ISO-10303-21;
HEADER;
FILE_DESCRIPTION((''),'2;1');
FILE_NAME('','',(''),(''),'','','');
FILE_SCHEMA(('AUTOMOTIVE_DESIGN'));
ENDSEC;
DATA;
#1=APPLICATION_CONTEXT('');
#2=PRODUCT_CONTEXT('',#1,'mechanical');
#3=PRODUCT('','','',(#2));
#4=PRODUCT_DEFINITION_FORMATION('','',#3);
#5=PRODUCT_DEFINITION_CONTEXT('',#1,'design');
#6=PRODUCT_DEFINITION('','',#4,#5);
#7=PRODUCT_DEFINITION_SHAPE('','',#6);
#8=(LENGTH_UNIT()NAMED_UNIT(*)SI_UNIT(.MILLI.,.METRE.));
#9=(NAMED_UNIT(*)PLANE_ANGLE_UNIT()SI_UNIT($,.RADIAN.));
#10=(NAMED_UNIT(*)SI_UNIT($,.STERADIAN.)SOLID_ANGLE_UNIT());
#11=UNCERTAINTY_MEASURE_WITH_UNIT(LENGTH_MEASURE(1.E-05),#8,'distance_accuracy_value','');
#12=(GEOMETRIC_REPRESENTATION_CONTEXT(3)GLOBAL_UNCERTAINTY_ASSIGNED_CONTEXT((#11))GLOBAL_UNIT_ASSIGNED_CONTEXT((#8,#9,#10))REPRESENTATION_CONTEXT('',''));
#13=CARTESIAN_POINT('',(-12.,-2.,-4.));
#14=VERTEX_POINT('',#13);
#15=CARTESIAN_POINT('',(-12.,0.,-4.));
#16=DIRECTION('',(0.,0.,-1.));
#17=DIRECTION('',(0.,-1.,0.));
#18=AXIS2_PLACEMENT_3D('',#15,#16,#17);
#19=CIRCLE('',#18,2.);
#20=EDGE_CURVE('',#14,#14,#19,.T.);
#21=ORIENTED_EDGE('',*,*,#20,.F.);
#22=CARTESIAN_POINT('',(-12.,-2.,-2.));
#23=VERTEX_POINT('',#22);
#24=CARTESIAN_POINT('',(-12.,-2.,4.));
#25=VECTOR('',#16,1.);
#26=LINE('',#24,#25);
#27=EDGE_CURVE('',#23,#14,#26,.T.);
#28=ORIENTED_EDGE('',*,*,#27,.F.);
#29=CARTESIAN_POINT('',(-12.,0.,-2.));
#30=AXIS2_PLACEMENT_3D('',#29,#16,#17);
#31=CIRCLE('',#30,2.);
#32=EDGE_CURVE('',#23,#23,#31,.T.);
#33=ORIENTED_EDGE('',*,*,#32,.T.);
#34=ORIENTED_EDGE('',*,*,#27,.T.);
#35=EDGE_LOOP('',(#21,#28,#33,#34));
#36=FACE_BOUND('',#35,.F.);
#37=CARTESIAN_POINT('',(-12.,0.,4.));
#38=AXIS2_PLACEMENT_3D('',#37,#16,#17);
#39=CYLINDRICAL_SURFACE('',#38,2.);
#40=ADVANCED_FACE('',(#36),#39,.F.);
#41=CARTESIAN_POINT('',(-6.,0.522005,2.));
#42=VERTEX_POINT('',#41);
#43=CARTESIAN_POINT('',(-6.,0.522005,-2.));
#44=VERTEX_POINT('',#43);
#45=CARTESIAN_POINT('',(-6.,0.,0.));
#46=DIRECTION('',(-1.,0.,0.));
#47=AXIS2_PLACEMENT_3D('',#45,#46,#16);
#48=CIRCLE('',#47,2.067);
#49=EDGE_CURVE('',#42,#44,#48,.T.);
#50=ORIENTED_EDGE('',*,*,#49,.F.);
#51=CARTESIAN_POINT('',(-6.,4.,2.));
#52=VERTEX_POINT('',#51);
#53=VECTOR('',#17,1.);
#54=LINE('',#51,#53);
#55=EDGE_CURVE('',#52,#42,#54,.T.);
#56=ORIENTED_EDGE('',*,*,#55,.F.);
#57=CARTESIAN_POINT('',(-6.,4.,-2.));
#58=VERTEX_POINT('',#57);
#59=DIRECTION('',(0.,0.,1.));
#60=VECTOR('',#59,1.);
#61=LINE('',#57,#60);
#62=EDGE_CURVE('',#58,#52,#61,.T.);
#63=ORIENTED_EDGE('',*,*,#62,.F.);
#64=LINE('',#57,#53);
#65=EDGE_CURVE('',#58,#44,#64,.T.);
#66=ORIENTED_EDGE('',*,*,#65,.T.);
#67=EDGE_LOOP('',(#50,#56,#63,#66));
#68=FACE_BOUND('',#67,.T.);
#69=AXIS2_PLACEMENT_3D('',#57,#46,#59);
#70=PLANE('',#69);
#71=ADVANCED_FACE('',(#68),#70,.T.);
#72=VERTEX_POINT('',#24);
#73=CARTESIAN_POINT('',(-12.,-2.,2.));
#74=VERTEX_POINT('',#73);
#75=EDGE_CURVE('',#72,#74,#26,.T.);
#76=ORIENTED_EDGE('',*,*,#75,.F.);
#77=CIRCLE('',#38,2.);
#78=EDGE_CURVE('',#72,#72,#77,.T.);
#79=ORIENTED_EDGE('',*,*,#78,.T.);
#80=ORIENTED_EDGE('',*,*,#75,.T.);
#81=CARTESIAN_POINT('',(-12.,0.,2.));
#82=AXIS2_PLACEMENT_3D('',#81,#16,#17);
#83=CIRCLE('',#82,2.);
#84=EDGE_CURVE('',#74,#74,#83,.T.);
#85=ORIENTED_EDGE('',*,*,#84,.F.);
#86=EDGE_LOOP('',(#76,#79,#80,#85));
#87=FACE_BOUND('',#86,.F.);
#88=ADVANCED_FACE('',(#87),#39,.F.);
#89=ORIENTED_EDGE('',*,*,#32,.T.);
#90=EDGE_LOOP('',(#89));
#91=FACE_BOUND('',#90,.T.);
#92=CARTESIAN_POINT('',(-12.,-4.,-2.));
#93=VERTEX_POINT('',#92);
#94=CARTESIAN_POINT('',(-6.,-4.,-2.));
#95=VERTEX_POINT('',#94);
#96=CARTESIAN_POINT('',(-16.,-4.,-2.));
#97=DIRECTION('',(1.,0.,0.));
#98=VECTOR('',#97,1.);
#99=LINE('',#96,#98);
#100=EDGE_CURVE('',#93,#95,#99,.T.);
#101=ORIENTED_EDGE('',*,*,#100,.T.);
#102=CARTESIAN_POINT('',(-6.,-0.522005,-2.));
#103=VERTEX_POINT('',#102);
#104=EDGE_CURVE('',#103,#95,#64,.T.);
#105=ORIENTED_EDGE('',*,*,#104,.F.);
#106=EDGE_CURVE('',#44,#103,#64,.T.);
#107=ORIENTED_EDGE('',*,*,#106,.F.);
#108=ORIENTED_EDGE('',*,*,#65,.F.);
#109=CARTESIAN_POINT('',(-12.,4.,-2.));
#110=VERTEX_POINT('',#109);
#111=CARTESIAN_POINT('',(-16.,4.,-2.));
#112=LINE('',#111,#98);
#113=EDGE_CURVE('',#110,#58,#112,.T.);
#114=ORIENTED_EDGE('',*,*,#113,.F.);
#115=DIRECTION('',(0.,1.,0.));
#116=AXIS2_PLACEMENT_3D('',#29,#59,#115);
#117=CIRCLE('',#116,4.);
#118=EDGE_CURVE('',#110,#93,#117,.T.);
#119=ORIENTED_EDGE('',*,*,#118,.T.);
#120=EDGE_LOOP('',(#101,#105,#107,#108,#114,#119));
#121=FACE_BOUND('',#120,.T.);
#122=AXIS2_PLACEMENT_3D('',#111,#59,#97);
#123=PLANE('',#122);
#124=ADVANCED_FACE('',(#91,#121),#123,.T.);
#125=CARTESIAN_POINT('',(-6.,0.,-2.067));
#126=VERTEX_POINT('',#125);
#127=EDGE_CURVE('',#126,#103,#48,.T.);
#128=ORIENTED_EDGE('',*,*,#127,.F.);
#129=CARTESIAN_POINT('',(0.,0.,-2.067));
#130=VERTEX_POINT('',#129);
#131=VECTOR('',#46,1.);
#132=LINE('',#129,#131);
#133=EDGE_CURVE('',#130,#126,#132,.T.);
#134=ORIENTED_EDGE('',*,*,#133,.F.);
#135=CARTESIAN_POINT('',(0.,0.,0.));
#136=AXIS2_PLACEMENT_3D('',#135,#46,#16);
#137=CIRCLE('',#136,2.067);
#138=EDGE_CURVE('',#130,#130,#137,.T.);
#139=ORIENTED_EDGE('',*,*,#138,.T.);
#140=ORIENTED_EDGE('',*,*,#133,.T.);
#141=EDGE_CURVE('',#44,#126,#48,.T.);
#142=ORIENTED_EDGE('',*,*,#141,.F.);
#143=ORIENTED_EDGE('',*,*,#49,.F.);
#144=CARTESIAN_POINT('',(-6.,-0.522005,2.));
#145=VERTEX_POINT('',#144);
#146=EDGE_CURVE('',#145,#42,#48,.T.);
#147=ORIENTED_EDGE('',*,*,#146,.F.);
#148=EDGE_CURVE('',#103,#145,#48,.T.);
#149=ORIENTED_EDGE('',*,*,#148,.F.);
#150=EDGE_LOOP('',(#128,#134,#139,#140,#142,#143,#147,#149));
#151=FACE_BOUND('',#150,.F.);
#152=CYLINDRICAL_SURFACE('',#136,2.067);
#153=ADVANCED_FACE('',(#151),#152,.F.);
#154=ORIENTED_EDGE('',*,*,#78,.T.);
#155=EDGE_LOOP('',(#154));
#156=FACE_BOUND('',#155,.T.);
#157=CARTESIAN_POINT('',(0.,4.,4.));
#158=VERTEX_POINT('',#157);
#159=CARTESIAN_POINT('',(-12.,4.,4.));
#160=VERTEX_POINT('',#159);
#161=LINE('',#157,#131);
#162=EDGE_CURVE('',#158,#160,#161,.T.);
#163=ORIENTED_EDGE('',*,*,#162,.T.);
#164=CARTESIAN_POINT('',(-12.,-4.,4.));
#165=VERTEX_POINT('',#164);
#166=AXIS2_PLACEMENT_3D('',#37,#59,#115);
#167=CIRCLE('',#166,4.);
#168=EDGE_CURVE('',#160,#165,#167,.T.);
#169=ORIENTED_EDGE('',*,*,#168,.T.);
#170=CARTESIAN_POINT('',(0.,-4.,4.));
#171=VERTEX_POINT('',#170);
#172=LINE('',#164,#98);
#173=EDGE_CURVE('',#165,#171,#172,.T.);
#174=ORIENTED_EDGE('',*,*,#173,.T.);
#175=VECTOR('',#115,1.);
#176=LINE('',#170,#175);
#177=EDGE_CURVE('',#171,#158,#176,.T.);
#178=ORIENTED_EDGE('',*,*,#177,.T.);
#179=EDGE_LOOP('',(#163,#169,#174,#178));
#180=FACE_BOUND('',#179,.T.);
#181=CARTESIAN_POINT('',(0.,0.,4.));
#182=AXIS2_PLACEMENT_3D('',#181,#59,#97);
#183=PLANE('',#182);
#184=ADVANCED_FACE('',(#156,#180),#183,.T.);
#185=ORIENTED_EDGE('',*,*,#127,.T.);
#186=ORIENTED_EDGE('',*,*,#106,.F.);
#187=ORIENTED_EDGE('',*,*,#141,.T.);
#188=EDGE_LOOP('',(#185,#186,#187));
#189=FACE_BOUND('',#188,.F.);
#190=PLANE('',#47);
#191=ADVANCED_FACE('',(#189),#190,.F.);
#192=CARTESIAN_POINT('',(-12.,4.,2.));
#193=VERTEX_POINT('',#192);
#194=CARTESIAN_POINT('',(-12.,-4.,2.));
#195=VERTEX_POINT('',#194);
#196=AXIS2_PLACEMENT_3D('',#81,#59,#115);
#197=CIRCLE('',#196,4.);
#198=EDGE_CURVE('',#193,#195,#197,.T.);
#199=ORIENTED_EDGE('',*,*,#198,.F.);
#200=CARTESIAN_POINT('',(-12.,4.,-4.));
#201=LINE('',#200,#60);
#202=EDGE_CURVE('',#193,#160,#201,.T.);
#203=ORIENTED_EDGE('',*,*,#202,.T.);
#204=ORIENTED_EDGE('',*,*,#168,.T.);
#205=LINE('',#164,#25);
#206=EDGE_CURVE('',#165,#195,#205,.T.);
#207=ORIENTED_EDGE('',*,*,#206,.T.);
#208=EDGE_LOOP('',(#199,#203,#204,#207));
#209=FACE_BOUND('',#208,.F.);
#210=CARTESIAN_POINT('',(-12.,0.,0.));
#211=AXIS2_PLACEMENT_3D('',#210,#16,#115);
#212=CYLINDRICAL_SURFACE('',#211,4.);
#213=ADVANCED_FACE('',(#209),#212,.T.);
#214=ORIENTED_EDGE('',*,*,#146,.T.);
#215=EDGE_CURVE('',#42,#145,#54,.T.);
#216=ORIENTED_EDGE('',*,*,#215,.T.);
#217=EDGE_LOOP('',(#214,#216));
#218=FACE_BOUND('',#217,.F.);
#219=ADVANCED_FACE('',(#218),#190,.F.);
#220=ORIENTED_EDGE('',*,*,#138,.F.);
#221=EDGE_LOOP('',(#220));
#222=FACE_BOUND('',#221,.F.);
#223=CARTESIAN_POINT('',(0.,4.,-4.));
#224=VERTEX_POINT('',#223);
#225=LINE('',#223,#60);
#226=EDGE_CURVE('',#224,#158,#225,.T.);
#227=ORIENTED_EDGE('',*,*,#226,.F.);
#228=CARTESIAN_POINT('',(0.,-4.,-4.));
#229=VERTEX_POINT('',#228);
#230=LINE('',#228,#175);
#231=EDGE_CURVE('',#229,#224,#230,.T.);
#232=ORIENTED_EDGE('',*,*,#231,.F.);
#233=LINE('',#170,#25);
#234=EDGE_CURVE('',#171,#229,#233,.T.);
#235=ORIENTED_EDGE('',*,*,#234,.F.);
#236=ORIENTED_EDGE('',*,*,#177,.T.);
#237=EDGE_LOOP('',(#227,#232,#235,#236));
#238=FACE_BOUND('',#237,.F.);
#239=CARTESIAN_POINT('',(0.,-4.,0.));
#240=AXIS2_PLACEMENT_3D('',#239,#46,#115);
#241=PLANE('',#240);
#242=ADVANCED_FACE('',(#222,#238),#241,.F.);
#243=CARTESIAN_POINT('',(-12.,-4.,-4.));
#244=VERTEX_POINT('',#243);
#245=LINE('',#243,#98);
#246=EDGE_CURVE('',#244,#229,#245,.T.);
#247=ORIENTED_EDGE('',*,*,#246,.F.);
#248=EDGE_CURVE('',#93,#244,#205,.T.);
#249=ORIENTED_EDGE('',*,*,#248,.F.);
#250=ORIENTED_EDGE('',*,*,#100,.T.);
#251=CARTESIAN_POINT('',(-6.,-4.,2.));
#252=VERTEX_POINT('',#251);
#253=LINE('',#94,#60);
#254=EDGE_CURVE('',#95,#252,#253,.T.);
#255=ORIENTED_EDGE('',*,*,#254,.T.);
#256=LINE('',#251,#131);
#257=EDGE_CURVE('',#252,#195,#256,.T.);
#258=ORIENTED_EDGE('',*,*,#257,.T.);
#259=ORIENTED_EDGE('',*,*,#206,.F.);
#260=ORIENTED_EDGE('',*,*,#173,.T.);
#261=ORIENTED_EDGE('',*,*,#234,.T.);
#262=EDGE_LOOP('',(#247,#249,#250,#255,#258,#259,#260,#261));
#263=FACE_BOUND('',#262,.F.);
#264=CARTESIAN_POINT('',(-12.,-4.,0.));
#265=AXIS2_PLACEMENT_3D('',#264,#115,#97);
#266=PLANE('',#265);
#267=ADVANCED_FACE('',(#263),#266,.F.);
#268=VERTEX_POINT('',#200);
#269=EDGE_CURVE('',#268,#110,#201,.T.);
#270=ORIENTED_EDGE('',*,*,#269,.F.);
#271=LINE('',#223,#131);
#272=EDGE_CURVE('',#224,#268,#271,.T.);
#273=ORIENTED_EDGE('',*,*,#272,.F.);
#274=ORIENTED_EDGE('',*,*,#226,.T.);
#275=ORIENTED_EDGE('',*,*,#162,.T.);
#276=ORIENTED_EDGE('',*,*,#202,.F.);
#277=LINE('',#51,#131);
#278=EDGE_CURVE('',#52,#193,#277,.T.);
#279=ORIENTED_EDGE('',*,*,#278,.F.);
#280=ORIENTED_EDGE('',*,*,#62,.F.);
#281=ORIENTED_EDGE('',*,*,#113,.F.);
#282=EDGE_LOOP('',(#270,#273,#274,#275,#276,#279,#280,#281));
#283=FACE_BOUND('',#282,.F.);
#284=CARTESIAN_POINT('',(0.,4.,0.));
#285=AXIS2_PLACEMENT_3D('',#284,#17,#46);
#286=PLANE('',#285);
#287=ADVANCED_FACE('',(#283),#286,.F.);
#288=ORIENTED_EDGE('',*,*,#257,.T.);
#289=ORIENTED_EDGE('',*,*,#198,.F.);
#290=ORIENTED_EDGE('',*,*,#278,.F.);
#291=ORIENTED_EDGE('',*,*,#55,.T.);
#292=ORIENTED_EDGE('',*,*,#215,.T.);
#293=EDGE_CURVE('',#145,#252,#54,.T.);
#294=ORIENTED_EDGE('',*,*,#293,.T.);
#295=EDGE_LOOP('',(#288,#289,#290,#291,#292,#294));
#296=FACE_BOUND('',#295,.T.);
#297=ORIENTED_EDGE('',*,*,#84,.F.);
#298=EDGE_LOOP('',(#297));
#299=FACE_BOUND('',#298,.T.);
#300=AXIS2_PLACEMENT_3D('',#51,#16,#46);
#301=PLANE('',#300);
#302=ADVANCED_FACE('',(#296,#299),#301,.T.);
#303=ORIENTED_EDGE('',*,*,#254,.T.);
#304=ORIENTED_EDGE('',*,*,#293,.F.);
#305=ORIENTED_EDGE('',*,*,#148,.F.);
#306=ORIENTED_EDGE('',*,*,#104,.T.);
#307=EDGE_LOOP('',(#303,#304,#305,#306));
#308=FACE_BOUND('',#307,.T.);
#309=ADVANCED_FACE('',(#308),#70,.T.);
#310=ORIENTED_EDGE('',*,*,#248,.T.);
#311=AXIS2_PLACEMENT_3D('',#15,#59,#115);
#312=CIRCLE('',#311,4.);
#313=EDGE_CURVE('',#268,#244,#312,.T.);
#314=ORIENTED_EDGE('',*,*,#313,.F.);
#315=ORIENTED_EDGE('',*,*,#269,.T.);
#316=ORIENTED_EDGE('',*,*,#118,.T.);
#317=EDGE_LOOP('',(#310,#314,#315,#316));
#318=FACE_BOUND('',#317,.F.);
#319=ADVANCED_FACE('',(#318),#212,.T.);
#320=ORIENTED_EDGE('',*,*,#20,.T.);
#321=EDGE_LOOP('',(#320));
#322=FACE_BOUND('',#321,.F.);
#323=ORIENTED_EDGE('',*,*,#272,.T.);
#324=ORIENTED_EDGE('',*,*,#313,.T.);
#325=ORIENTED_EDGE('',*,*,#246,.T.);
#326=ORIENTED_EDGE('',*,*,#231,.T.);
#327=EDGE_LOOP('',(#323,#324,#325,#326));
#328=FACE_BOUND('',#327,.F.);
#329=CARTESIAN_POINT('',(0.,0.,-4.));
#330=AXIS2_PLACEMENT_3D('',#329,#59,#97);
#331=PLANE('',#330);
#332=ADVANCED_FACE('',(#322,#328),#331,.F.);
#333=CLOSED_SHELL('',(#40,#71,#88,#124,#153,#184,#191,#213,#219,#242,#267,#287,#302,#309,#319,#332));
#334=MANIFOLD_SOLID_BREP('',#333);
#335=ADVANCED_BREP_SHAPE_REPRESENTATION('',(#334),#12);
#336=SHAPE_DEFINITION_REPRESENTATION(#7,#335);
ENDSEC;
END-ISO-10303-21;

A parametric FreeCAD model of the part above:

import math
import FreeCAD as App
import Part
import Sketcher

doc = App.newDocument("Part")
body = doc.addObject("PartDesign::Body", "Body")

# Sketch on XY plane
sketch1 = body.newObject("Sketcher::SketchObject", "Sketch")
sketch1.AttachmentSupport = (doc.getObject("XY_Plane"), [""])
sketch1.MapMode = "FlatFace"
sketch1.addGeometry([
    Part.LineSegment(App.Vector(0, -4, 0), App.Vector(0, 4, 0)),
    Part.LineSegment(App.Vector(0, 4, 0), App.Vector(-12, 4, 0)),
    Part.ArcOfCircle(Part.Circle(App.Vector(-12, 0, 0), App.Vector(0, 0, 1), 4), math.radians(90), math.radians(270)),
    Part.LineSegment(App.Vector(-12, -4, 0), App.Vector(0, -4, 0)),
], False)
sketch1.addConstraint([
    Sketcher.Constraint("Coincident", 0, 2, 1, 1),
    Sketcher.Constraint("Tangent", 1, 2, 2, 1),
    Sketcher.Constraint("Tangent", 2, 2, 3, 1),
    Sketcher.Constraint("Coincident", 3, 2, 0, 1),
    Sketcher.Constraint("Vertical", 0),
    Sketcher.Constraint("Horizontal", 1),
    Sketcher.Constraint("Horizontal", 3),
    Sketcher.Constraint("Symmetric", 0, 2, 3, 2, -1, 1),
    Sketcher.Constraint("Radius", 2, 4.0),
    Sketcher.Constraint("DistanceX", 1, 2, 1, 1, 12.0),
])
pad1 = body.newObject("PartDesign::Pad", "Pad")
pad1.Profile = sketch1
pad1.Length = 8
pad1.Midplane = True

# Sketch on XY plane
sketch2 = body.newObject("Sketcher::SketchObject", "Sketch001")
sketch2.AttachmentSupport = (doc.getObject("XY_Plane"), [""])
sketch2.MapMode = "FlatFace"
sketch2.AttachmentOffset = App.Placement(App.Vector(0, 0, 4), App.Rotation())
sketch2.addGeometry(Part.Circle(App.Vector(-12, 0, 0), App.Vector(0, 0, 1), 2), False)
sketch2.addConstraint([
    Sketcher.Constraint("PointOnObject", 0, 3, -1),
    Sketcher.Constraint("Diameter", 0, 4.0),
    Sketcher.Constraint("DistanceX", 0, 3, -1, 1, 12.0),
])
doc.recompute()
hole = body.newObject("PartDesign::Hole", "Hole")
hole.Profile = sketch2
hole.ThreadType = "None"
hole.Diameter = 4
hole.DepthType = "Dimension"
hole.Depth = 8
hole.DrillPoint = "Flat"

# Sketch on XZ plane
sketch3 = body.newObject("Sketcher::SketchObject", "Sketch002")
sketch3.AttachmentSupport = (doc.getObject("XZ_Plane"), [""])
sketch3.MapMode = "FlatFace"
sketch3.AttachmentOffset = App.Placement(App.Vector(0, 0, -4), App.Rotation())
sketch3.addGeometry([
    Part.LineSegment(App.Vector(-6, -2, 0), App.Vector(-16, -2, 0)),
    Part.LineSegment(App.Vector(-16, -2, 0), App.Vector(-16, 2, 0)),
    Part.LineSegment(App.Vector(-16, 2, 0), App.Vector(-6, 2, 0)),
    Part.LineSegment(App.Vector(-6, 2, 0), App.Vector(-6, -2, 0)),
], False)
sketch3.addConstraint([
    Sketcher.Constraint("Coincident", 0, 2, 1, 1),
    Sketcher.Constraint("Coincident", 1, 2, 2, 1),
    Sketcher.Constraint("Coincident", 2, 2, 3, 1),
    Sketcher.Constraint("Coincident", 3, 2, 0, 1),
    Sketcher.Constraint("Horizontal", 0),
    Sketcher.Constraint("Vertical", 1),
    Sketcher.Constraint("Horizontal", 2),
    Sketcher.Constraint("Vertical", 3),
    Sketcher.Constraint("DistanceX", 0, 2, 0, 1, 10.0),
    Sketcher.Constraint("DistanceY", 1, 1, 1, 2, 4.0),
    Sketcher.Constraint("DistanceX", 0, 2, -1, 1, 16.0),
    Sketcher.Constraint("DistanceY", 0, 2, -1, 1, 2.0),
])
pocket1 = body.newObject("PartDesign::Pocket", "Pocket")
pocket1.Profile = sketch3
pocket1.Length = 8
pocket1.Reversed = True

# Sketch on YZ plane
sketch4 = body.newObject("Sketcher::SketchObject", "Sketch003")
sketch4.AttachmentSupport = (doc.getObject("YZ_Plane"), [""])
sketch4.MapMode = "FlatFace"
sketch4.addGeometry(Part.Circle(App.Vector(0, 0, 0), App.Vector(0, 0, 1), 2.1), False)
sketch4.addConstraint([
    Sketcher.Constraint("Coincident", 0, 3, -1, 1),
    Sketcher.Constraint("Diameter", 0, 4.134),
])
doc.recompute()
hole2 = body.newObject("PartDesign::Hole", "Hole001")
hole2.Profile = sketch4
hole2.ThreadType = "None"
hole2.Diameter = 4.134
hole2.DepthType = "Dimension"
hole2.Depth = 6
hole2.DrillPoint = "Flat"

doc.recompute()
